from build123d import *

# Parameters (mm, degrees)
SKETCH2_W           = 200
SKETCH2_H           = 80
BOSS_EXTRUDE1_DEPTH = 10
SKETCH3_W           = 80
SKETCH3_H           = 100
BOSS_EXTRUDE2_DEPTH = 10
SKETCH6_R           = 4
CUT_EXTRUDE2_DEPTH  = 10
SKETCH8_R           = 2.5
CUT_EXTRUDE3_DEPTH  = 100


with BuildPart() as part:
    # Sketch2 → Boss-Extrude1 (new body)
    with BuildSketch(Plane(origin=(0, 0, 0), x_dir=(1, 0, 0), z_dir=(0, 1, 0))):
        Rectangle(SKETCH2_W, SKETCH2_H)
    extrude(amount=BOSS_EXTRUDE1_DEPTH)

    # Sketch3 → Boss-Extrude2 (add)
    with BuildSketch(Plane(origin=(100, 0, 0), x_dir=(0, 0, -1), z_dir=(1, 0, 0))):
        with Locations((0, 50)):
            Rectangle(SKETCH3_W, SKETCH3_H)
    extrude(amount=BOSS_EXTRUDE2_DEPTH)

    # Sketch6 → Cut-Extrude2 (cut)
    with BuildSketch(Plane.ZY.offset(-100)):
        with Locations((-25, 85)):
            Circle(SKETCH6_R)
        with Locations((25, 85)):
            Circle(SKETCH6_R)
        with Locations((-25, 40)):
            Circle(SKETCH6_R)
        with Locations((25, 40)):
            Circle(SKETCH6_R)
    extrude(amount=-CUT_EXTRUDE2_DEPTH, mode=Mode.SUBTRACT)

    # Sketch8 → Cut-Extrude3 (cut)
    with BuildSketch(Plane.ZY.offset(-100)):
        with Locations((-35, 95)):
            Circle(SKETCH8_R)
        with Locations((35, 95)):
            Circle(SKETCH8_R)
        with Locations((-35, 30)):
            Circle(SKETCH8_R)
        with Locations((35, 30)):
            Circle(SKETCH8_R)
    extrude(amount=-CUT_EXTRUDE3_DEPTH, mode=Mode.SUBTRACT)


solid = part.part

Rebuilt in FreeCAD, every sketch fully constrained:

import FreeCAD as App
import Part
import Sketcher
from FreeCAD import Vector


def add_polygon(sketch, points):
    """Adds a closed chain of lines whose ends are joined by coincident constraints."""
    first, n = sketch.GeometryCount, len(points)
    for a, b in zip(points, points[1:] + points[:1]):
        sketch.addGeometry(Part.LineSegment(App.Vector(*a, 0), App.Vector(*b, 0)), False)
    for i in range(n):
        sketch.addConstraint(Sketcher.Constraint("Coincident", first + i, 2, first + (i + 1) % n, 1))

doc = App.newDocument("Part")
body = doc.addObject("PartDesign::Body", "Body")

sketch1 = doc.addObject("Sketcher::SketchObject", "Sketch")
body.addObject(sketch1)
sketch1.AttachmentSupport = (doc.XZ_Plane, [""])
sketch1.MapMode = "FlatFace"
add_polygon(sketch1, [(-100, -40), (-100, 40), (100, 40), (100, -40)])
sketch1.addConstraint([
    Sketcher.Constraint("Vertical", 0),
    Sketcher.Constraint("Horizontal", 1),
    Sketcher.Constraint("Vertical", 2),
    Sketcher.Constraint("Horizontal", 3),
    Sketcher.Constraint("Symmetric", 0, 2, 2, 2, -1, 1),
    Sketcher.Constraint("DistanceX", 1, 1, 1, 2, 200.0),
    Sketcher.Constraint("DistanceY", 0, 1, 0, 2, 80.0),
])
pad1 = doc.addObject("PartDesign::Pad", "Pad")
body.addObject(pad1)
pad1.Profile = sketch1
pad1.Length = 10
pad1.Reversed = True

sketch2 = doc.addObject("Sketcher::SketchObject", "Sketch001")
body.addObject(sketch2)
sketch2.AttachmentSupport = (doc.YZ_Plane, [""])
sketch2.MapMode = "FlatFace"
sketch2.AttachmentOffset = App.Placement(Vector(0, 0, 100), App.Rotation())
add_polygon(sketch2, [(100, 40), (0, 40), (0, -40), (100, -40)])
sketch2.addConstraint([
    Sketcher.Constraint("Horizontal", 0),
    Sketcher.Constraint("Vertical", 1),
    Sketcher.Constraint("Horizontal", 2),
    Sketcher.Constraint("Vertical", 3),
    Sketcher.Constraint("Symmetric", 0, 2, 1, 2, -1, 1),
    Sketcher.Constraint("DistanceX", 0, 2, 0, 1, 100.0),
    Sketcher.Constraint("DistanceY", 1, 2, 1, 1, 80.0),
])
pad2 = doc.addObject("PartDesign::Pad", "Pad001")
body.addObject(pad2)
pad2.Profile = sketch2
pad2.Length = 10

sketch3 = doc.addObject("Sketcher::SketchObject", "Sketch002")
body.addObject(sketch3)
sketch3.AttachmentSupport = (doc.YZ_Plane, [""])
sketch3.MapMode = "FlatFace"
sketch3.AttachmentOffset = App.Placement(Vector(0, 0, 100), App.Rotation())
sketch3.addGeometry([
    Part.Circle(Vector(85, -25, 0), Vector(0, 0, 1), 4),
    Part.Circle(Vector(85, 25, 0), Vector(0, 0, 1), 4),
    Part.Circle(Vector(40, -25, 0), Vector(0, 0, 1), 4),
    Part.Circle(Vector(40, 25, 0), Vector(0, 0, 1), 4),
], False)
sketch3.addConstraint([
    Sketcher.Constraint("Equal", 0, 1),
    Sketcher.Constraint("Equal", 1, 2),
    Sketcher.Constraint("Equal", 2, 3),
    Sketcher.Constraint("Symmetric", 0, 3, 1, 3, -1),
    Sketcher.Constraint("Symmetric", 2, 3, 3, 3, -1),
    Sketcher.Constraint("Horizontal", 0, 3, 2, 3),
    Sketcher.Constraint("Diameter", 0, 8.0),
    Sketcher.Constraint("DistanceX", -1, 1, 0, 3, 85.0),
    Sketcher.Constraint("DistanceY", 0, 3, -1, 1, 25.0),
    Sketcher.Constraint("DistanceX", -1, 1, 2, 3, 40.0),
])
pocket1 = doc.addObject("PartDesign::Pocket", "Pocket")
body.addObject(pocket1)
pocket1.Profile = sketch3
pocket1.Length = 10
pocket1.Reversed = True

sketch4 = doc.addObject("Sketcher::SketchObject", "Sketch003")
body.addObject(sketch4)
sketch4.AttachmentSupport = (doc.YZ_Plane, [""])
sketch4.MapMode = "FlatFace"
sketch4.AttachmentOffset = App.Placement(Vector(0, 0, 100), App.Rotation())
sketch4.addGeometry([
    Part.Circle(Vector(95, -35, 0), Vector(0, 0, 1), 2.5),
    Part.Circle(Vector(95, 35, 0), Vector(0, 0, 1), 2.5),
    Part.Circle(Vector(30, -35, 0), Vector(0, 0, 1), 2.5),
    Part.Circle(Vector(30, 35, 0), Vector(0, 0, 1), 2.5),
], False)
sketch4.addConstraint([
    Sketcher.Constraint("Equal", 0, 1),
    Sketcher.Constraint("Equal", 1, 2),
    Sketcher.Constraint("Equal", 2, 3),
    Sketcher.Constraint("Symmetric", 0, 3, 1, 3, -1),
    Sketcher.Constraint("Symmetric", 2, 3, 3, 3, -1),
    Sketcher.Constraint("Horizontal", 0, 3, 2, 3),
    Sketcher.Constraint("Diameter", 0, 5.0),
    Sketcher.Constraint("DistanceX", -1, 1, 0, 3, 95.0),
    Sketcher.Constraint("DistanceY", 0, 3, -1, 1, 35.0),
    Sketcher.Constraint("DistanceX", -1, 1, 2, 3, 30.0),
])
pocket2 = doc.addObject("PartDesign::Pocket", "Pocket001")
body.addObject(pocket2)
pocket2.Profile = sketch4
pocket2.Length = 100
pocket2.Reversed = True

doc.recompute()
